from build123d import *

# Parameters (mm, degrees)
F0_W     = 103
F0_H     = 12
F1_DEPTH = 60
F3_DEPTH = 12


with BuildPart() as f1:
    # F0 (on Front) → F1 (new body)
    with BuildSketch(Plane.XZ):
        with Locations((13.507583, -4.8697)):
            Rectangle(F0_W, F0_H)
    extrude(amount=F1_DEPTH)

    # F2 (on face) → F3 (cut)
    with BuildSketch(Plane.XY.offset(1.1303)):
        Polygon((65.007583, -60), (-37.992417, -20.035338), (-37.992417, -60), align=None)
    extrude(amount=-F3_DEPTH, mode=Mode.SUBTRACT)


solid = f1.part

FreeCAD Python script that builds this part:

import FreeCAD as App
import Part
import Sketcher


def add_polygon(sketch, points):
    """Adds a closed chain of lines whose ends are joined by coincident constraints."""
    first, n = sketch.GeometryCount, len(points)
    for a, b in zip(points, points[1:] + points[:1]):
        sketch.addGeometry(Part.LineSegment(App.Vector(*a, 0), App.Vector(*b, 0)), False)
    for i in range(n):
        sketch.addConstraint(Sketcher.Constraint("Coincident", first + i, 2, first + (i + 1) % n, 1))

doc = App.newDocument("Part")
body = doc.addObject("PartDesign::Body", "Body")

# Sketch on XZ plane
sketch1 = body.newObject("Sketcher::SketchObject", "Sketch")
sketch1.AttachmentSupport = (doc.getObject("XZ_Plane"), [""])
sketch1.MapMode = "FlatFace"
add_polygon(sketch1, [(-37.992417, 1.1303), (-37.992417, -10.8697), (65.007583, -10.8697), (65.007583, 1.1303)])  # lines 0-3
sketch1.addConstraint([
    Sketcher.Constraint("Vertical", 0),
    Sketcher.Constraint("Horizontal", 1),
    Sketcher.Constraint("Vertical", 2),
    Sketcher.Constraint("Horizontal", 3),
    Sketcher.Constraint("DistanceX", 1, 1, 1, 2, 103.0),
    Sketcher.Constraint("DistanceY", 0, 2, 0, 1, 12.0),
    Sketcher.Constraint("DistanceY", 0, 2, -1, 1, 10.8697),
    Sketcher.Constraint("DistanceX", 0, 2, -1, 1, 37.992417),
])
pad1 = body.newObject("PartDesign::Pad", "Pad")
pad1.Profile = sketch1
pad1.Length = 60

# Sketch on XY plane
sketch2 = body.newObject("Sketcher::SketchObject", "Sketch001")
sketch2.AttachmentSupport = (doc.getObject("XY_Plane"), [""])
sketch2.MapMode = "FlatFace"
sketch2.AttachmentOffset = App.Placement(App.Vector(0, 0, 1.1303), App.Rotation())
add_polygon(sketch2, [(65.007583, -60), (-37.992417, -20.035338), (-37.992417, -60)])  # lines 0-2
sketch2.addConstraint([
    Sketcher.Constraint("Vertical", 1),
    Sketcher.Constraint("Horizontal", 2),
    Sketcher.Constraint("DistanceX", 2, 1, 2, 2, 103.0),
    Sketcher.Constraint("DistanceY", 1, 2, -1, 1, 60.0),
    Sketcher.Constraint("DistanceY", 1, 2, 1, 1, 39.964662),
    Sketcher.Constraint("DistanceX", 0, 2, -1, 1, 37.992417),
])
pocket1 = body.newObject("PartDesign::Pocket", "Pocket")
pocket1.Profile = sketch2
pocket1.Length = 12

doc.recompute()
